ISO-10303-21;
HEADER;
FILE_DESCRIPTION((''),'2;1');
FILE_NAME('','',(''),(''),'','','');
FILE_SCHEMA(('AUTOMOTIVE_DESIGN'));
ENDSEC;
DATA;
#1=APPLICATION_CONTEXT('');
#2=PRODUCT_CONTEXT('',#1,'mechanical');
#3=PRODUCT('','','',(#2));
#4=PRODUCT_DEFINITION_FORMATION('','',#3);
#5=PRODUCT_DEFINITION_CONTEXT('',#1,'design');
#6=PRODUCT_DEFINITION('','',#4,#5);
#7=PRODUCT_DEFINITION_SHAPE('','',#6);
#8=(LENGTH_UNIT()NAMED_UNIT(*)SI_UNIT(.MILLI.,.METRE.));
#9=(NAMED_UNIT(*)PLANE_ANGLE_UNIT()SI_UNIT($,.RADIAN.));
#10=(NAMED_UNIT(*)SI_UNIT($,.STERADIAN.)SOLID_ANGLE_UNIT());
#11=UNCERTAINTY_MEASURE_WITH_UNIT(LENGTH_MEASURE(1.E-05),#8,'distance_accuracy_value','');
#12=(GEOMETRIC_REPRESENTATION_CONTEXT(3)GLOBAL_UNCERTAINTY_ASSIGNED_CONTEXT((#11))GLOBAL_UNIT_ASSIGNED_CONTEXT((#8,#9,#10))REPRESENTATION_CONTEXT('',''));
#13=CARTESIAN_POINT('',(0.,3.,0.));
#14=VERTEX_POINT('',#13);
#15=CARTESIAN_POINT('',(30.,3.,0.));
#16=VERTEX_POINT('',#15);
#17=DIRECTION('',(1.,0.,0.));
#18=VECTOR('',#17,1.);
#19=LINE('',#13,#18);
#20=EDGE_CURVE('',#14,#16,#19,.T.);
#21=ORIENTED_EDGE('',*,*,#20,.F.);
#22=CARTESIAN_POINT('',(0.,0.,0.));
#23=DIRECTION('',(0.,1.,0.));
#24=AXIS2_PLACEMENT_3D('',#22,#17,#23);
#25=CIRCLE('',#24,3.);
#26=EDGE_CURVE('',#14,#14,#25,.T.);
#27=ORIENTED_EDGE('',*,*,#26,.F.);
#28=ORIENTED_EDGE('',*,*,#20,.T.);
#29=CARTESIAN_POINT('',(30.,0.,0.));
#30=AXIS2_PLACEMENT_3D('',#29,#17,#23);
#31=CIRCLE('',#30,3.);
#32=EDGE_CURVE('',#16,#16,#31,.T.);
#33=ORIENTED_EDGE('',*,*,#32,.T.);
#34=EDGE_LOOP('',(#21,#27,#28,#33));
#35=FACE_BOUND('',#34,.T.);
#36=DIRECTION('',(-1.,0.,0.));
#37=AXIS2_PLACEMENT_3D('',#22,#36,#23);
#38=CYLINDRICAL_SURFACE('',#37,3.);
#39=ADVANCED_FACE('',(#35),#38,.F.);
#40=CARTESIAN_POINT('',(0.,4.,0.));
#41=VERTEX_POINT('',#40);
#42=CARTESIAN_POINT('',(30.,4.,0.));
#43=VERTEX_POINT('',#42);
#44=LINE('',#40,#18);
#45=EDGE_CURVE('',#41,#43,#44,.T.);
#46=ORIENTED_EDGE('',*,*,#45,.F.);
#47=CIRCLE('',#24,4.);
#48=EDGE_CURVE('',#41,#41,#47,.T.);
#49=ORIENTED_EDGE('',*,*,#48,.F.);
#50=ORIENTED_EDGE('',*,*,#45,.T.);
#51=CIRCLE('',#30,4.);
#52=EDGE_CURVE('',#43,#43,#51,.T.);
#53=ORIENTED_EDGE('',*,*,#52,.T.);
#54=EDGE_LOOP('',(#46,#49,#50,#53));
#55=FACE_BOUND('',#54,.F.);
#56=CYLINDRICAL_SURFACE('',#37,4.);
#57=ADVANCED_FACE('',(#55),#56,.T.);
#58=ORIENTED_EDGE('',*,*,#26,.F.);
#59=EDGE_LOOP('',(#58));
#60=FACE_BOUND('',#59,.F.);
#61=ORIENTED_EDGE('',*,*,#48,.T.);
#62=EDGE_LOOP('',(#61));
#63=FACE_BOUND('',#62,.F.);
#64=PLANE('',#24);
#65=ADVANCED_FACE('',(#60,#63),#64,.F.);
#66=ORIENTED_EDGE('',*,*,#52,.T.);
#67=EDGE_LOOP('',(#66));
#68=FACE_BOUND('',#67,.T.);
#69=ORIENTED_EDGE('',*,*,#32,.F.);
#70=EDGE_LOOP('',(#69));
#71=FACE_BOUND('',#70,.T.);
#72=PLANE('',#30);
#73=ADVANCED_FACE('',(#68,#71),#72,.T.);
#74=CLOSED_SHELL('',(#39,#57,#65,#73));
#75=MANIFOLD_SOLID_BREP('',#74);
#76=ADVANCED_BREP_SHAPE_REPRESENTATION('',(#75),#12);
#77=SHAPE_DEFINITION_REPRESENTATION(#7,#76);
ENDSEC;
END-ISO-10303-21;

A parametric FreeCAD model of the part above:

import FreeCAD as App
import Part
import Sketcher
from FreeCAD import Vector
Q = App.Units.Quantity

doc = App.newDocument("Part")
body = doc.addObject("PartDesign::Body", "Body")

# Sketch on YZ plane
sketch1 = body.newObject("Sketcher::SketchObject", "Sketch")
sketch1.AttachmentSupport = (doc.getObject("YZ_Plane"), [""])
sketch1.MapMode = "FlatFace"
sketch1.addGeometry(Part.Circle(Vector(0, 0, 0), Vector(0, 0, 1), 4), False)
sketch1.addGeometry(Part.Circle(Vector(0, 0, 0), Vector(0, 0, 1), 3), False)
sketch1.addConstraint(Sketcher.Constraint("Coincident", 0, 3, -1, 1))
sketch1.addConstraint(Sketcher.Constraint("Coincident", 1, 3, -1, 1))
sketch1.addConstraint(Sketcher.Constraint("Diameter", 0, Q("8 mm")))
sketch1.addConstraint(Sketcher.Constraint("Diameter", 1, Q("6 mm")))
pad1 = body.newObject("PartDesign::Pad", "Pad")
pad1.Profile = sketch1
pad1.Length = 30

doc.recompute()
